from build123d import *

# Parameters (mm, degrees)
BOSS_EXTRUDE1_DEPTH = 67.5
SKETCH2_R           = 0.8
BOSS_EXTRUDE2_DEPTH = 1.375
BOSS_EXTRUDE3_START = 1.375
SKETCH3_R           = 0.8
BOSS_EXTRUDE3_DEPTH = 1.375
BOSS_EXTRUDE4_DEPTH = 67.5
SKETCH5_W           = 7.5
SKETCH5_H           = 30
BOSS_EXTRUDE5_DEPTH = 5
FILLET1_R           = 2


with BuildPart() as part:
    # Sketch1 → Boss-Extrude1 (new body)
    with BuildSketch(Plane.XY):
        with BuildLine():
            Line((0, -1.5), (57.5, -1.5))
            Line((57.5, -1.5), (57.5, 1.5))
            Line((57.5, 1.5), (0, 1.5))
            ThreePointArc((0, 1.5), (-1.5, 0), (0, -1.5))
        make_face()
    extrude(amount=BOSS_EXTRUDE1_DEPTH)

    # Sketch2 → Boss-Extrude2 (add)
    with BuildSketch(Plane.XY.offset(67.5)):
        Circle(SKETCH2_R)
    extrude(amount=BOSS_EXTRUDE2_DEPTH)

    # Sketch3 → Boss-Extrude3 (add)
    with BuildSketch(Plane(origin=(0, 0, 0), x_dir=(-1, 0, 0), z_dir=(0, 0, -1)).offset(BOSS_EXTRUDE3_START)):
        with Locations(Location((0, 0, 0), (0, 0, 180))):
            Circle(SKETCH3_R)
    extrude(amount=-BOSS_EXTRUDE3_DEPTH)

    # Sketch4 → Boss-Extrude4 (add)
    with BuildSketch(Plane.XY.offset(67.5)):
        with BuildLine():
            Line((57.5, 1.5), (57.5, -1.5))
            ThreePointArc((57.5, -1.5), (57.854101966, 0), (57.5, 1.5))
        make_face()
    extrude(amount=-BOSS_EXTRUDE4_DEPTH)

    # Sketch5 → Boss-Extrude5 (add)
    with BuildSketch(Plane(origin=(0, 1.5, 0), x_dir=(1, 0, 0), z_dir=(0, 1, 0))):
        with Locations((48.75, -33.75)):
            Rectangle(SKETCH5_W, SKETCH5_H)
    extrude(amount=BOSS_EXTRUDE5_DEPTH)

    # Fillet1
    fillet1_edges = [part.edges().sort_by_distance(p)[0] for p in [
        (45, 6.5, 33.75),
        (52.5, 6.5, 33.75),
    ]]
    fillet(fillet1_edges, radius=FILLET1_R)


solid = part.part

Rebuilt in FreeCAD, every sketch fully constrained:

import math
import FreeCAD as App
import Part
import Sketcher


def edges_at(feature, points):
    """Names of the edges that pass closest to the given points."""
    edges = feature.Shape.Edges
    near = lambda p: min(range(len(edges)), key=lambda i: edges[i].distToShape(Part.Vertex(*p))[0])
    return sorted({f"Edge{near(p) + 1}" for p in points})


def add_polygon(sketch, points):
    """Adds a closed chain of lines whose ends are joined by coincident constraints."""
    first, n = sketch.GeometryCount, len(points)
    for a, b in zip(points, points[1:] + points[:1]):
        sketch.addGeometry(Part.LineSegment(App.Vector(*a, 0), App.Vector(*b, 0)), False)
    for i in range(n):
        sketch.addConstraint(Sketcher.Constraint("Coincident", first + i, 2, first + (i + 1) % n, 1))

doc = App.newDocument("Part")
body = doc.addObject("PartDesign::Body", "Body")

# Sketch on XY plane
sketch1 = body.newObject("Sketcher::SketchObject", "Sketch")
sketch1.AttachmentSupport = (doc.getObject("XY_Plane"), [""])
sketch1.MapMode = "FlatFace"
sketch1.addGeometry([
    Part.LineSegment(App.Vector(0, -1.5, 0), App.Vector(57.5, -1.5, 0)),
    Part.LineSegment(App.Vector(57.5, -1.5, 0), App.Vector(57.5, 1.5, 0)),
    Part.LineSegment(App.Vector(57.5, 1.5, 0), App.Vector(0, 1.5, 0)),
    Part.ArcOfCircle(Part.Circle(App.Vector(0, 0, 0), App.Vector(0, 0, 1), 1.5), math.radians(90), math.radians(270)),
], False)
sketch1.addConstraint([
    Sketcher.Constraint("Coincident", 0, 2, 1, 1),
    Sketcher.Constraint("Coincident", 1, 2, 2, 1),
    Sketcher.Constraint("Tangent", 2, 2, 3, 1),
    Sketcher.Constraint("Tangent", 3, 2, 0, 1),
    Sketcher.Constraint("Horizontal", 0),
    Sketcher.Constraint("Vertical", 1),
    Sketcher.Constraint("Horizontal", 2),
    Sketcher.Constraint("Coincident", 3, 3, -1, 1),
    Sketcher.Constraint("Radius", 3, 1.5),
    Sketcher.Constraint("DistanceX", 0, 1, 0, 2, 57.5),
])
pad1 = body.newObject("PartDesign::Pad", "Pad")
pad1.Profile = sketch1
pad1.Length = 67.5

# Sketch on XY plane
sketch2 = body.newObject("Sketcher::SketchObject", "Sketch001")
sketch2.AttachmentSupport = (doc.getObject("XY_Plane"), [""])
sketch2.MapMode = "FlatFace"
sketch2.AttachmentOffset = App.Placement(App.Vector(0, 0, 67.5), App.Rotation())
sketch2.addGeometry(Part.Circle(App.Vector(0, 0, 0), App.Vector(0, 0, 1), 0.8), False)
sketch2.addConstraint([
    Sketcher.Constraint("Coincident", 0, 3, -1, 1),
    Sketcher.Constraint("Diameter", 0, 1.6),
])
pad2 = body.newObject("PartDesign::Pad", "Pad001")
pad2.Profile = sketch2
pad2.Length = 1.375

# Sketch on XY plane
sketch3 = body.newObject("Sketcher::SketchObject", "Sketch002")
sketch3.AttachmentSupport = (doc.getObject("XY_Plane"), [""])
sketch3.MapMode = "FlatFace"
sketch3.AttachmentOffset = App.Placement(App.Vector(0, 0, -1.375), App.Rotation())
sketch3.addGeometry(Part.Circle(App.Vector(0, 0, 0), App.Vector(0, 0, 1), 0.8), False)
sketch3.addConstraint([
    Sketcher.Constraint("Coincident", 0, 3, -1, 1),
    Sketcher.Constraint("Diameter", 0, 1.6),
])
pad3 = body.newObject("PartDesign::Pad", "Pad002")
pad3.Profile = sketch3
pad3.Length = 1.375

# Sketch on XY plane
sketch4 = body.newObject("Sketcher::SketchObject", "Sketch003")
sketch4.AttachmentSupport = (doc.getObject("XY_Plane"), [""])
sketch4.MapMode = "FlatFace"
sketch4.AttachmentOffset = App.Placement(App.Vector(0, 0, 67.5), App.Rotation())
sketch4.addGeometry([
    Part.LineSegment(App.Vector(57.5, 1.5, 0), App.Vector(57.5, -1.5, 0)),
    Part.ArcOfCircle(Part.Circle(App.Vector(54.5, 0, 0), App.Vector(0, 0, 1), 3.4), math.radians(-27), math.radians(27)),
], False)
sketch4.addConstraint([
    Sketcher.Constraint("Coincident", 0, 1, 1, 2),
    Sketcher.Constraint("Coincident", 1, 1, 0, 2),
    Sketcher.Constraint("Vertical", 0),
    Sketcher.Constraint("PointOnObject", 1, 3, -1),
    Sketcher.Constraint("DistanceY", 0, 2, 0, 1, 3.0),
    Sketcher.Constraint("DistanceX", 1, 3, 0, 1, 3.0),
    Sketcher.Constraint("DistanceX", -1, 1, 1, 3, 54.5),
])
pad4 = body.newObject("PartDesign::Pad", "Pad003")
pad4.Profile = sketch4
pad4.Length = 67.5
pad4.Reversed = True

# Sketch on XZ plane
sketch5 = body.newObject("Sketcher::SketchObject", "Sketch004")
sketch5.AttachmentSupport = (doc.getObject("XZ_Plane"), [""])
sketch5.MapMode = "FlatFace"
sketch5.AttachmentOffset = App.Placement(App.Vector(0, 0, -1.5), App.Rotation())
add_polygon(sketch5, [(45, 19), (45, 49), (52, 49), (52, 19)])  # lines 0-3
sketch5.addConstraint([
    Sketcher.Constraint("Vertical", 0),
    Sketcher.Constraint("Horizontal", 1),
    Sketcher.Constraint("Vertical", 2),
    Sketcher.Constraint("Horizontal", 3),
    Sketcher.Constraint("DistanceY", 0, 1, 0, 2, 30.0),
    Sketcher.Constraint("DistanceX", 1, 1, 1, 2, 7.5),
    Sketcher.Constraint("DistanceX", -1, 1, 0, 2, 45.0),
    Sketcher.Constraint("DistanceY", -1, 1, 0, 2, 48.75),
])
pad5 = body.newObject("PartDesign::Pad", "Pad004")
pad5.Profile = sketch5
pad5.Length = 5
pad5.Reversed = True
doc.recompute()

fillet = body.newObject("PartDesign::Fillet", "Fillet")
fillet.Base = (pad5, edges_at(pad5, [(45, 6.5, 33.75), (52.5, 6.5, 33.75)]))
fillet.Radius = 2

doc.recompute()
